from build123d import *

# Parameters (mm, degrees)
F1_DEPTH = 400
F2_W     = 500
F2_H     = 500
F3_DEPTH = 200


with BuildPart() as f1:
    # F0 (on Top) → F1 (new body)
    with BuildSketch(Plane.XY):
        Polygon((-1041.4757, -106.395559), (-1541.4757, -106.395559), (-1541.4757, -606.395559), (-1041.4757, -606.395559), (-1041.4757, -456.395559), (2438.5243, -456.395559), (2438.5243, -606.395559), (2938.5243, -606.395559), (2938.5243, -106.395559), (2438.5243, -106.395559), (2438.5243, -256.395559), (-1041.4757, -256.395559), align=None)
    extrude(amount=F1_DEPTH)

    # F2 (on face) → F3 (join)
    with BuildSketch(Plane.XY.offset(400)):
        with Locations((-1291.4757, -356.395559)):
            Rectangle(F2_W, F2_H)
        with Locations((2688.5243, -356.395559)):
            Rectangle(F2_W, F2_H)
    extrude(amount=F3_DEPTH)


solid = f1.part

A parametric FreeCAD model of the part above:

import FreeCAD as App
import Part
import Sketcher

V = App.Vector
Q = App.Units.Quantity


def add_polygon(sketch, points):
    """Adds a closed chain of lines whose ends are joined by coincident constraints."""
    first, n = sketch.GeometryCount, len(points)
    for a, b in zip(points, points[1:] + points[:1]):
        sketch.addGeometry(Part.LineSegment(App.Vector(*a, 0), App.Vector(*b, 0)), False)
    for i in range(n):
        sketch.addConstraint(Sketcher.Constraint("Coincident", first + i, 2, first + (i + 1) % n, 1))

doc = App.newDocument("Part")
body = doc.addObject("PartDesign::Body", "Body")

sketch1 = doc.addObject("Sketcher::SketchObject", "Sketch")
body.addObject(sketch1)
sketch1.AttachmentSupport = (doc.XY_Plane, [""])
sketch1.MapMode = "FlatFace"
add_polygon(sketch1, [(-1041, -106), (-1541, -106), (-1541, -606), (-1041, -606), (-1041, -456), (2439, -456), (2439, -606), (2939, -606), (2939, -106), (2439, -106), (2439, -256), (-1041, -256)])
sketch1.addConstraint(Sketcher.Constraint("Horizontal", 0))
sketch1.addConstraint(Sketcher.Constraint("Vertical", 1))
sketch1.addConstraint(Sketcher.Constraint("Horizontal", 2))
sketch1.addConstraint(Sketcher.Constraint("Vertical", 3))
sketch1.addConstraint(Sketcher.Constraint("Horizontal", 4))
sketch1.addConstraint(Sketcher.Constraint("Vertical", 5))
sketch1.addConstraint(Sketcher.Constraint("Horizontal", 6))
sketch1.addConstraint(Sketcher.Constraint("Vertical", 7))
sketch1.addConstraint(Sketcher.Constraint("Horizontal", 8))
sketch1.addConstraint(Sketcher.Constraint("Vertical", 9))
sketch1.addConstraint(Sketcher.Constraint("Horizontal", 10))
sketch1.addConstraint(Sketcher.Constraint("Vertical", 11))
sketch1.addConstraint(Sketcher.Constraint("Horizontal", 2, 2, 5, 2))
sketch1.addConstraint(Sketcher.Constraint("Horizontal", 0, 2, 7, 2))
sketch1.addConstraint(Sketcher.Constraint("Vertical", 5, 2, 8, 2))
sketch1.addConstraint(Sketcher.Constraint("Vertical", 3, 2, 10, 2))
sketch1.addConstraint(Sketcher.Constraint("Equal", 2, 6))
sketch1.addConstraint(Sketcher.Constraint("Equal", 8, 1))
sketch1.addConstraint(Sketcher.Constraint("Equal", 5, 9))
sketch1.addConstraint(Sketcher.Constraint("DistanceX", 0, 2, 0, 1, Q("500 mm")))
sketch1.addConstraint(Sketcher.Constraint("DistanceX", 4, 1, 4, 2, Q("3480 mm")))
sketch1.addConstraint(Sketcher.Constraint("DistanceY", 3, 1, 3, 2, Q("150 mm")))
sketch1.addConstraint(Sketcher.Constraint("DistanceX", 0, 2, -1, 1, Q("1541.4757 mm")))
sketch1.addConstraint(Sketcher.Constraint("DistanceY", 0, 2, -1, 1, Q("106.395559 mm")))
pad1 = doc.addObject("PartDesign::Pad", "Pad")
body.addObject(pad1)
pad1.Profile = sketch1
pad1.Length = 400

sketch2 = doc.addObject("Sketcher::SketchObject", "Sketch001")
body.addObject(sketch2)
sketch2.AttachmentSupport = (doc.XY_Plane, [""])
sketch2.MapMode = "FlatFace"
sketch2.AttachmentOffset = App.Placement(V(0, 0, 400), App.Rotation())
add_polygon(sketch2, [(-1541, -106), (-1541, -606), (-1041, -606), (-1041, -106)])
add_polygon(sketch2, [(2439, -106), (2439, -606), (2939, -606), (2939, -106)])
sketch2.addConstraint(Sketcher.Constraint("Vertical", 0))
sketch2.addConstraint(Sketcher.Constraint("Horizontal", 1))
sketch2.addConstraint(Sketcher.Constraint("Vertical", 2))
sketch2.addConstraint(Sketcher.Constraint("Horizontal", 3))
sketch2.addConstraint(Sketcher.Constraint("Vertical", 4))
sketch2.addConstraint(Sketcher.Constraint("Horizontal", 5))
sketch2.addConstraint(Sketcher.Constraint("Vertical", 6))
sketch2.addConstraint(Sketcher.Constraint("Horizontal", 7))
sketch2.addConstraint(Sketcher.Constraint("Horizontal", 1, 2, 4, 2))
sketch2.addConstraint(Sketcher.Constraint("Horizontal", 3, 2, 6, 2))
sketch2.addConstraint(Sketcher.Constraint("Equal", 3, 5))
sketch2.addConstraint(Sketcher.Constraint("Equal", 7, 0))
sketch2.addConstraint(Sketcher.Constraint("DistanceX", 1, 1, 1, 2, Q("500 mm")))
sketch2.addConstraint(Sketcher.Constraint("DistanceX", 1, 2, 4, 2, Q("3480 mm")))
sketch2.addConstraint(Sketcher.Constraint("DistanceX", 0, 2, -1, 1, Q("1541.4757 mm")))
sketch2.addConstraint(Sketcher.Constraint("DistanceY", 0, 2, -1, 1, Q("606.395559 mm")))
pad2 = doc.addObject("PartDesign::Pad", "Pad001")
body.addObject(pad2)
pad2.Profile = sketch2
pad2.Length = 200

doc.recompute()
